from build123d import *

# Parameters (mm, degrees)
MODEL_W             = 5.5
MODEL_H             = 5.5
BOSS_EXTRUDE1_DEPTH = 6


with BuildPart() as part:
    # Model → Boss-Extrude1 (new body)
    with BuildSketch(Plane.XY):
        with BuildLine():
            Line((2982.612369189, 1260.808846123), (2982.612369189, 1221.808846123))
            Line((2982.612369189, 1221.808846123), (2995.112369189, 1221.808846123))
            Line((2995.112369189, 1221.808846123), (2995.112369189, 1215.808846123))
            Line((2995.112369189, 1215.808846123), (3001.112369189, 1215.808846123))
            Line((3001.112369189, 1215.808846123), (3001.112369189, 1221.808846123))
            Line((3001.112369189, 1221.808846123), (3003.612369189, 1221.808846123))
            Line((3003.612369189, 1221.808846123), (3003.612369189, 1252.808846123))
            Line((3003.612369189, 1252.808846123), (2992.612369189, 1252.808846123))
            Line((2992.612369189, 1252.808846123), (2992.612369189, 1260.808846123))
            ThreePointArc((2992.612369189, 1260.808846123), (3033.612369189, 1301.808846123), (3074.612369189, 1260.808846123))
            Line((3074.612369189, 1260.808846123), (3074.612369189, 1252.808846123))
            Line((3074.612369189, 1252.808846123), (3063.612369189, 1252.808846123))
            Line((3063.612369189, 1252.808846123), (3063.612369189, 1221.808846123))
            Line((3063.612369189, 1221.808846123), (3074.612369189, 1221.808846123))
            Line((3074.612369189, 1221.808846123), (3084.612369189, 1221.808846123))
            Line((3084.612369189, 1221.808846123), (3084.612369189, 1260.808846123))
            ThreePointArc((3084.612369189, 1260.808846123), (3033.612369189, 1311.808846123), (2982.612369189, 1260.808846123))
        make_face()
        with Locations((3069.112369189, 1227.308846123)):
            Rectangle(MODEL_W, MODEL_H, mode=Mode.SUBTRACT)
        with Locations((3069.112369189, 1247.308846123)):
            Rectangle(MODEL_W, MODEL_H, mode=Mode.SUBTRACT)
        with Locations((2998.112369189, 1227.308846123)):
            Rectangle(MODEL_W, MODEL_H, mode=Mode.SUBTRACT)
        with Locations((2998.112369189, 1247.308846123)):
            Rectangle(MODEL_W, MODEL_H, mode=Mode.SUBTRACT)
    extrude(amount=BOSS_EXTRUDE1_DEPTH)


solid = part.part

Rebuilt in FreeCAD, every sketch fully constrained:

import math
import FreeCAD as App
import Part
import Sketcher
Q = App.Units.Quantity


def add_polygon(sketch, points):
    """Adds a closed chain of lines whose ends are joined by coincident constraints."""
    first, n = sketch.GeometryCount, len(points)
    for a, b in zip(points, points[1:] + points[:1]):
        sketch.addGeometry(Part.LineSegment(App.Vector(*a, 0), App.Vector(*b, 0)), False)
    for i in range(n):
        sketch.addConstraint(Sketcher.Constraint("Coincident", first + i, 2, first + (i + 1) % n, 1))

doc = App.newDocument("Part")
body = doc.addObject("PartDesign::Body", "Body")

sketch1 = body.newObject("Sketcher::SketchObject", "Sketch")
sketch1.AttachmentSupport = (doc.getObject("XY_Plane"), [""])
sketch1.MapMode = "FlatFace"
sketch1.addGeometry(Part.LineSegment(App.Vector(2982.6, 1260.8, 0), App.Vector(2982.6, 1221.8, 0)), False)
sketch1.addGeometry(Part.LineSegment(App.Vector(2982.6, 1221.8, 0), App.Vector(2995.1, 1221.8, 0)), False)
sketch1.addGeometry(Part.LineSegment(App.Vector(2995.1, 1221.8, 0), App.Vector(2995.1, 1215.8, 0)), False)
sketch1.addGeometry(Part.LineSegment(App.Vector(2995.1, 1215.8, 0), App.Vector(3001.1, 1215.8, 0)), False)
sketch1.addGeometry(Part.LineSegment(App.Vector(3001.1, 1215.8, 0), App.Vector(3001.1, 1221.8, 0)), False)
sketch1.addGeometry(Part.LineSegment(App.Vector(3001.1, 1221.8, 0), App.Vector(3003.6, 1221.8, 0)), False)
sketch1.addGeometry(Part.LineSegment(App.Vector(3003.6, 1221.8, 0), App.Vector(3003.6, 1252.8, 0)), False)
sketch1.addGeometry(Part.LineSegment(App.Vector(3003.6, 1252.8, 0), App.Vector(2992.6, 1252.8, 0)), False)
sketch1.addGeometry(Part.LineSegment(App.Vector(2992.6, 1252.8, 0), App.Vector(2992.6, 1260.8, 0)), False)
sketch1.addGeometry(Part.ArcOfCircle(Part.Circle(App.Vector(3033.6, 1260.8, 0), App.Vector(0, 0, 1), 41), math.radians(0), math.radians(180)), False)
sketch1.addGeometry(Part.LineSegment(App.Vector(3074.6, 1260.8, 0), App.Vector(3074.6, 1252.8, 0)), False)
sketch1.addGeometry(Part.LineSegment(App.Vector(3074.6, 1252.8, 0), App.Vector(3063.6, 1252.8, 0)), False)
sketch1.addGeometry(Part.LineSegment(App.Vector(3063.6, 1252.8, 0), App.Vector(3063.6, 1221.8, 0)), False)
sketch1.addGeometry(Part.LineSegment(App.Vector(3063.6, 1221.8, 0), App.Vector(3084.6, 1221.8, 0)), False)
sketch1.addGeometry(Part.LineSegment(App.Vector(3084.6, 1221.8, 0), App.Vector(3084.6, 1260.8, 0)), False)
sketch1.addGeometry(Part.ArcOfCircle(Part.Circle(App.Vector(3033.6, 1260.8, 0), App.Vector(0, 0, 1), 51), math.radians(0), math.radians(180)), False)
add_polygon(sketch1, [(3000.9, 1224.6), (2995.4, 1224.6), (2995.4, 1230.1), (3000.9, 1230.1)])
add_polygon(sketch1, [(3071.9, 1224.6), (3066.4, 1224.6), (3066.4, 1230.1), (3071.9, 1230.1)])
add_polygon(sketch1, [(3000.9, 1244.6), (2995.4, 1244.6), (2995.4, 1250.1), (3000.9, 1250.1)])
add_polygon(sketch1, [(3071.9, 1244.6), (3066.4, 1244.6), (3066.4, 1250.1), (3071.9, 1250.1)])
sketch1.addConstraint(Sketcher.Constraint("Coincident", 0, 2, 1, 1))
sketch1.addConstraint(Sketcher.Constraint("Coincident", 1, 2, 2, 1))
sketch1.addConstraint(Sketcher.Constraint("Coincident", 2, 2, 3, 1))
sketch1.addConstraint(Sketcher.Constraint("Coincident", 3, 2, 4, 1))
sketch1.addConstraint(Sketcher.Constraint("Coincident", 4, 2, 5, 1))
sketch1.addConstraint(Sketcher.Constraint("Coincident", 5, 2, 6, 1))
sketch1.addConstraint(Sketcher.Constraint("Coincident", 6, 2, 7, 1))
sketch1.addConstraint(Sketcher.Constraint("Coincident", 7, 2, 8, 1))
sketch1.addConstraint(Sketcher.Constraint("Tangent", 8, 2, 9, 2))
sketch1.addConstraint(Sketcher.Constraint("Tangent", 9, 1, 10, 1))
sketch1.addConstraint(Sketcher.Constraint("Coincident", 10, 2, 11, 1))
sketch1.addConstraint(Sketcher.Constraint("Coincident", 11, 2, 12, 1))
sketch1.addConstraint(Sketcher.Constraint("Coincident", 12, 2, 13, 1))
sketch1.addConstraint(Sketcher.Constraint("Coincident", 13, 2, 14, 1))
sketch1.addConstraint(Sketcher.Constraint("Tangent", 14, 2, 15, 1))
sketch1.addConstraint(Sketcher.Constraint("Tangent", 15, 2, 0, 1))
sketch1.addConstraint(Sketcher.Constraint("Vertical", 0))
sketch1.addConstraint(Sketcher.Constraint("Horizontal", 1))
sketch1.addConstraint(Sketcher.Constraint("Vertical", 2))
sketch1.addConstraint(Sketcher.Constraint("Horizontal", 3))
sketch1.addConstraint(Sketcher.Constraint("Vertical", 4))
sketch1.addConstraint(Sketcher.Constraint("Horizontal", 5))
sketch1.addConstraint(Sketcher.Constraint("Vertical", 6))
sketch1.addConstraint(Sketcher.Constraint("Horizontal", 7))
sketch1.addConstraint(Sketcher.Constraint("Vertical", 8))
sketch1.addConstraint(Sketcher.Constraint("Vertical", 10))
sketch1.addConstraint(Sketcher.Constraint("Horizontal", 11))
sketch1.addConstraint(Sketcher.Constraint("Vertical", 12))
sketch1.addConstraint(Sketcher.Constraint("Horizontal", 13))
sketch1.addConstraint(Sketcher.Constraint("Vertical", 14))
sketch1.addConstraint(Sketcher.Constraint("Horizontal", 16))
sketch1.addConstraint(Sketcher.Constraint("Vertical", 17))
sketch1.addConstraint(Sketcher.Constraint("Horizontal", 18))
sketch1.addConstraint(Sketcher.Constraint("Vertical", 19))
sketch1.addConstraint(Sketcher.Constraint("Horizontal", 20))
sketch1.addConstraint(Sketcher.Constraint("Vertical", 21))
sketch1.addConstraint(Sketcher.Constraint("Horizontal", 22))
sketch1.addConstraint(Sketcher.Constraint("Vertical", 23))
sketch1.addConstraint(Sketcher.Constraint("Horizontal", 24))
sketch1.addConstraint(Sketcher.Constraint("Vertical", 25))
sketch1.addConstraint(Sketcher.Constraint("Horizontal", 26))
sketch1.addConstraint(Sketcher.Constraint("Vertical", 27))
sketch1.addConstraint(Sketcher.Constraint("Horizontal", 28))
sketch1.addConstraint(Sketcher.Constraint("Vertical", 29))
sketch1.addConstraint(Sketcher.Constraint("Horizontal", 30))
sketch1.addConstraint(Sketcher.Constraint("Vertical", 31))
sketch1.addConstraint(Sketcher.Constraint("Coincident", 15, 3, 9, 3))
sketch1.addConstraint(Sketcher.Constraint("Horizontal", 1, 2, 4, 2))
sketch1.addConstraint(Sketcher.Constraint("Horizontal", 7, 2, 10, 2))
sketch1.addConstraint(Sketcher.Constraint("Horizontal", 5, 2, 12, 2))
sketch1.addConstraint(Sketcher.Constraint("Horizontal", 19, 2, 20, 2))
sketch1.addConstraint(Sketcher.Constraint("Horizontal", 18, 2, 21, 2))
sketch1.addConstraint(Sketcher.Constraint("Horizontal", 27, 2, 28, 2))
sketch1.addConstraint(Sketcher.Constraint("Horizontal", 26, 2, 29, 2))
sketch1.addConstraint(Sketcher.Constraint("Vertical", 17, 2, 24, 2))
sketch1.addConstraint(Sketcher.Constraint("Vertical", 19, 2, 26, 2))
sketch1.addConstraint(Sketcher.Constraint("Vertical", 21, 2, 28, 2))
sketch1.addConstraint(Sketcher.Constraint("Vertical", 23, 2, 30, 2))
sketch1.addConstraint(Sketcher.Constraint("Equal", 7, 11))
sketch1.addConstraint(Sketcher.Constraint("Equal", 18, 20))
sketch1.addConstraint(Sketcher.Constraint("Equal", 3, 2))
sketch1.addConstraint(Sketcher.Constraint("Equal", 30, 17))
sketch1.addConstraint(Sketcher.Constraint("Equal", 23, 25))
sketch1.addConstraint(Sketcher.Constraint("Radius", 9, Q("41 mm")))
sketch1.addConstraint(Sketcher.Constraint("Radius", 15, Q("51 mm")))
sketch1.addConstraint(Sketcher.Constraint("DistanceX", 3, 1, 3, 2, Q("6 mm")))
sketch1.addConstraint(Sketcher.Constraint("DistanceX", 7, 2, 7, 1, Q("11 mm")))
sketch1.addConstraint(Sketcher.Constraint("DistanceY", 0, 2, 0, 1, Q("39 mm")))
sketch1.addConstraint(Sketcher.Constraint("DistanceY", 6, 1, 6, 2, Q("31 mm")))
sketch1.addConstraint(Sketcher.Constraint("DistanceX", 1, 1, 1, 2, Q("12.5 mm")))
sketch1.addConstraint(Sketcher.Constraint("DistanceX", 16, 2, 16, 1, Q("5.5 mm")))
sketch1.addConstraint(Sketcher.Constraint("DistanceY", 21, 2, 29, 2, Q("20 mm")))
sketch1.addConstraint(Sketcher.Constraint("DistanceX", 1, 2, 16, 2, Q("0.25 mm")))
sketch1.addConstraint(Sketcher.Constraint("DistanceY", 1, 2, 16, 2, Q("2.75 mm")))
sketch1.addConstraint(Sketcher.Constraint("DistanceX", 12, 2, 20, 2, Q("2.75 mm")))
sketch1.addConstraint(Sketcher.Constraint("DistanceX", -1, 1, 9, 3, Q("3033.612369 mm")))
sketch1.addConstraint(Sketcher.Constraint("DistanceY", -1, 1, 9, 3, Q("1260.808846 mm")))
pad1 = body.newObject("PartDesign::Pad", "Pad")
pad1.Profile = sketch1
pad1.Length = 6

doc.recompute()
